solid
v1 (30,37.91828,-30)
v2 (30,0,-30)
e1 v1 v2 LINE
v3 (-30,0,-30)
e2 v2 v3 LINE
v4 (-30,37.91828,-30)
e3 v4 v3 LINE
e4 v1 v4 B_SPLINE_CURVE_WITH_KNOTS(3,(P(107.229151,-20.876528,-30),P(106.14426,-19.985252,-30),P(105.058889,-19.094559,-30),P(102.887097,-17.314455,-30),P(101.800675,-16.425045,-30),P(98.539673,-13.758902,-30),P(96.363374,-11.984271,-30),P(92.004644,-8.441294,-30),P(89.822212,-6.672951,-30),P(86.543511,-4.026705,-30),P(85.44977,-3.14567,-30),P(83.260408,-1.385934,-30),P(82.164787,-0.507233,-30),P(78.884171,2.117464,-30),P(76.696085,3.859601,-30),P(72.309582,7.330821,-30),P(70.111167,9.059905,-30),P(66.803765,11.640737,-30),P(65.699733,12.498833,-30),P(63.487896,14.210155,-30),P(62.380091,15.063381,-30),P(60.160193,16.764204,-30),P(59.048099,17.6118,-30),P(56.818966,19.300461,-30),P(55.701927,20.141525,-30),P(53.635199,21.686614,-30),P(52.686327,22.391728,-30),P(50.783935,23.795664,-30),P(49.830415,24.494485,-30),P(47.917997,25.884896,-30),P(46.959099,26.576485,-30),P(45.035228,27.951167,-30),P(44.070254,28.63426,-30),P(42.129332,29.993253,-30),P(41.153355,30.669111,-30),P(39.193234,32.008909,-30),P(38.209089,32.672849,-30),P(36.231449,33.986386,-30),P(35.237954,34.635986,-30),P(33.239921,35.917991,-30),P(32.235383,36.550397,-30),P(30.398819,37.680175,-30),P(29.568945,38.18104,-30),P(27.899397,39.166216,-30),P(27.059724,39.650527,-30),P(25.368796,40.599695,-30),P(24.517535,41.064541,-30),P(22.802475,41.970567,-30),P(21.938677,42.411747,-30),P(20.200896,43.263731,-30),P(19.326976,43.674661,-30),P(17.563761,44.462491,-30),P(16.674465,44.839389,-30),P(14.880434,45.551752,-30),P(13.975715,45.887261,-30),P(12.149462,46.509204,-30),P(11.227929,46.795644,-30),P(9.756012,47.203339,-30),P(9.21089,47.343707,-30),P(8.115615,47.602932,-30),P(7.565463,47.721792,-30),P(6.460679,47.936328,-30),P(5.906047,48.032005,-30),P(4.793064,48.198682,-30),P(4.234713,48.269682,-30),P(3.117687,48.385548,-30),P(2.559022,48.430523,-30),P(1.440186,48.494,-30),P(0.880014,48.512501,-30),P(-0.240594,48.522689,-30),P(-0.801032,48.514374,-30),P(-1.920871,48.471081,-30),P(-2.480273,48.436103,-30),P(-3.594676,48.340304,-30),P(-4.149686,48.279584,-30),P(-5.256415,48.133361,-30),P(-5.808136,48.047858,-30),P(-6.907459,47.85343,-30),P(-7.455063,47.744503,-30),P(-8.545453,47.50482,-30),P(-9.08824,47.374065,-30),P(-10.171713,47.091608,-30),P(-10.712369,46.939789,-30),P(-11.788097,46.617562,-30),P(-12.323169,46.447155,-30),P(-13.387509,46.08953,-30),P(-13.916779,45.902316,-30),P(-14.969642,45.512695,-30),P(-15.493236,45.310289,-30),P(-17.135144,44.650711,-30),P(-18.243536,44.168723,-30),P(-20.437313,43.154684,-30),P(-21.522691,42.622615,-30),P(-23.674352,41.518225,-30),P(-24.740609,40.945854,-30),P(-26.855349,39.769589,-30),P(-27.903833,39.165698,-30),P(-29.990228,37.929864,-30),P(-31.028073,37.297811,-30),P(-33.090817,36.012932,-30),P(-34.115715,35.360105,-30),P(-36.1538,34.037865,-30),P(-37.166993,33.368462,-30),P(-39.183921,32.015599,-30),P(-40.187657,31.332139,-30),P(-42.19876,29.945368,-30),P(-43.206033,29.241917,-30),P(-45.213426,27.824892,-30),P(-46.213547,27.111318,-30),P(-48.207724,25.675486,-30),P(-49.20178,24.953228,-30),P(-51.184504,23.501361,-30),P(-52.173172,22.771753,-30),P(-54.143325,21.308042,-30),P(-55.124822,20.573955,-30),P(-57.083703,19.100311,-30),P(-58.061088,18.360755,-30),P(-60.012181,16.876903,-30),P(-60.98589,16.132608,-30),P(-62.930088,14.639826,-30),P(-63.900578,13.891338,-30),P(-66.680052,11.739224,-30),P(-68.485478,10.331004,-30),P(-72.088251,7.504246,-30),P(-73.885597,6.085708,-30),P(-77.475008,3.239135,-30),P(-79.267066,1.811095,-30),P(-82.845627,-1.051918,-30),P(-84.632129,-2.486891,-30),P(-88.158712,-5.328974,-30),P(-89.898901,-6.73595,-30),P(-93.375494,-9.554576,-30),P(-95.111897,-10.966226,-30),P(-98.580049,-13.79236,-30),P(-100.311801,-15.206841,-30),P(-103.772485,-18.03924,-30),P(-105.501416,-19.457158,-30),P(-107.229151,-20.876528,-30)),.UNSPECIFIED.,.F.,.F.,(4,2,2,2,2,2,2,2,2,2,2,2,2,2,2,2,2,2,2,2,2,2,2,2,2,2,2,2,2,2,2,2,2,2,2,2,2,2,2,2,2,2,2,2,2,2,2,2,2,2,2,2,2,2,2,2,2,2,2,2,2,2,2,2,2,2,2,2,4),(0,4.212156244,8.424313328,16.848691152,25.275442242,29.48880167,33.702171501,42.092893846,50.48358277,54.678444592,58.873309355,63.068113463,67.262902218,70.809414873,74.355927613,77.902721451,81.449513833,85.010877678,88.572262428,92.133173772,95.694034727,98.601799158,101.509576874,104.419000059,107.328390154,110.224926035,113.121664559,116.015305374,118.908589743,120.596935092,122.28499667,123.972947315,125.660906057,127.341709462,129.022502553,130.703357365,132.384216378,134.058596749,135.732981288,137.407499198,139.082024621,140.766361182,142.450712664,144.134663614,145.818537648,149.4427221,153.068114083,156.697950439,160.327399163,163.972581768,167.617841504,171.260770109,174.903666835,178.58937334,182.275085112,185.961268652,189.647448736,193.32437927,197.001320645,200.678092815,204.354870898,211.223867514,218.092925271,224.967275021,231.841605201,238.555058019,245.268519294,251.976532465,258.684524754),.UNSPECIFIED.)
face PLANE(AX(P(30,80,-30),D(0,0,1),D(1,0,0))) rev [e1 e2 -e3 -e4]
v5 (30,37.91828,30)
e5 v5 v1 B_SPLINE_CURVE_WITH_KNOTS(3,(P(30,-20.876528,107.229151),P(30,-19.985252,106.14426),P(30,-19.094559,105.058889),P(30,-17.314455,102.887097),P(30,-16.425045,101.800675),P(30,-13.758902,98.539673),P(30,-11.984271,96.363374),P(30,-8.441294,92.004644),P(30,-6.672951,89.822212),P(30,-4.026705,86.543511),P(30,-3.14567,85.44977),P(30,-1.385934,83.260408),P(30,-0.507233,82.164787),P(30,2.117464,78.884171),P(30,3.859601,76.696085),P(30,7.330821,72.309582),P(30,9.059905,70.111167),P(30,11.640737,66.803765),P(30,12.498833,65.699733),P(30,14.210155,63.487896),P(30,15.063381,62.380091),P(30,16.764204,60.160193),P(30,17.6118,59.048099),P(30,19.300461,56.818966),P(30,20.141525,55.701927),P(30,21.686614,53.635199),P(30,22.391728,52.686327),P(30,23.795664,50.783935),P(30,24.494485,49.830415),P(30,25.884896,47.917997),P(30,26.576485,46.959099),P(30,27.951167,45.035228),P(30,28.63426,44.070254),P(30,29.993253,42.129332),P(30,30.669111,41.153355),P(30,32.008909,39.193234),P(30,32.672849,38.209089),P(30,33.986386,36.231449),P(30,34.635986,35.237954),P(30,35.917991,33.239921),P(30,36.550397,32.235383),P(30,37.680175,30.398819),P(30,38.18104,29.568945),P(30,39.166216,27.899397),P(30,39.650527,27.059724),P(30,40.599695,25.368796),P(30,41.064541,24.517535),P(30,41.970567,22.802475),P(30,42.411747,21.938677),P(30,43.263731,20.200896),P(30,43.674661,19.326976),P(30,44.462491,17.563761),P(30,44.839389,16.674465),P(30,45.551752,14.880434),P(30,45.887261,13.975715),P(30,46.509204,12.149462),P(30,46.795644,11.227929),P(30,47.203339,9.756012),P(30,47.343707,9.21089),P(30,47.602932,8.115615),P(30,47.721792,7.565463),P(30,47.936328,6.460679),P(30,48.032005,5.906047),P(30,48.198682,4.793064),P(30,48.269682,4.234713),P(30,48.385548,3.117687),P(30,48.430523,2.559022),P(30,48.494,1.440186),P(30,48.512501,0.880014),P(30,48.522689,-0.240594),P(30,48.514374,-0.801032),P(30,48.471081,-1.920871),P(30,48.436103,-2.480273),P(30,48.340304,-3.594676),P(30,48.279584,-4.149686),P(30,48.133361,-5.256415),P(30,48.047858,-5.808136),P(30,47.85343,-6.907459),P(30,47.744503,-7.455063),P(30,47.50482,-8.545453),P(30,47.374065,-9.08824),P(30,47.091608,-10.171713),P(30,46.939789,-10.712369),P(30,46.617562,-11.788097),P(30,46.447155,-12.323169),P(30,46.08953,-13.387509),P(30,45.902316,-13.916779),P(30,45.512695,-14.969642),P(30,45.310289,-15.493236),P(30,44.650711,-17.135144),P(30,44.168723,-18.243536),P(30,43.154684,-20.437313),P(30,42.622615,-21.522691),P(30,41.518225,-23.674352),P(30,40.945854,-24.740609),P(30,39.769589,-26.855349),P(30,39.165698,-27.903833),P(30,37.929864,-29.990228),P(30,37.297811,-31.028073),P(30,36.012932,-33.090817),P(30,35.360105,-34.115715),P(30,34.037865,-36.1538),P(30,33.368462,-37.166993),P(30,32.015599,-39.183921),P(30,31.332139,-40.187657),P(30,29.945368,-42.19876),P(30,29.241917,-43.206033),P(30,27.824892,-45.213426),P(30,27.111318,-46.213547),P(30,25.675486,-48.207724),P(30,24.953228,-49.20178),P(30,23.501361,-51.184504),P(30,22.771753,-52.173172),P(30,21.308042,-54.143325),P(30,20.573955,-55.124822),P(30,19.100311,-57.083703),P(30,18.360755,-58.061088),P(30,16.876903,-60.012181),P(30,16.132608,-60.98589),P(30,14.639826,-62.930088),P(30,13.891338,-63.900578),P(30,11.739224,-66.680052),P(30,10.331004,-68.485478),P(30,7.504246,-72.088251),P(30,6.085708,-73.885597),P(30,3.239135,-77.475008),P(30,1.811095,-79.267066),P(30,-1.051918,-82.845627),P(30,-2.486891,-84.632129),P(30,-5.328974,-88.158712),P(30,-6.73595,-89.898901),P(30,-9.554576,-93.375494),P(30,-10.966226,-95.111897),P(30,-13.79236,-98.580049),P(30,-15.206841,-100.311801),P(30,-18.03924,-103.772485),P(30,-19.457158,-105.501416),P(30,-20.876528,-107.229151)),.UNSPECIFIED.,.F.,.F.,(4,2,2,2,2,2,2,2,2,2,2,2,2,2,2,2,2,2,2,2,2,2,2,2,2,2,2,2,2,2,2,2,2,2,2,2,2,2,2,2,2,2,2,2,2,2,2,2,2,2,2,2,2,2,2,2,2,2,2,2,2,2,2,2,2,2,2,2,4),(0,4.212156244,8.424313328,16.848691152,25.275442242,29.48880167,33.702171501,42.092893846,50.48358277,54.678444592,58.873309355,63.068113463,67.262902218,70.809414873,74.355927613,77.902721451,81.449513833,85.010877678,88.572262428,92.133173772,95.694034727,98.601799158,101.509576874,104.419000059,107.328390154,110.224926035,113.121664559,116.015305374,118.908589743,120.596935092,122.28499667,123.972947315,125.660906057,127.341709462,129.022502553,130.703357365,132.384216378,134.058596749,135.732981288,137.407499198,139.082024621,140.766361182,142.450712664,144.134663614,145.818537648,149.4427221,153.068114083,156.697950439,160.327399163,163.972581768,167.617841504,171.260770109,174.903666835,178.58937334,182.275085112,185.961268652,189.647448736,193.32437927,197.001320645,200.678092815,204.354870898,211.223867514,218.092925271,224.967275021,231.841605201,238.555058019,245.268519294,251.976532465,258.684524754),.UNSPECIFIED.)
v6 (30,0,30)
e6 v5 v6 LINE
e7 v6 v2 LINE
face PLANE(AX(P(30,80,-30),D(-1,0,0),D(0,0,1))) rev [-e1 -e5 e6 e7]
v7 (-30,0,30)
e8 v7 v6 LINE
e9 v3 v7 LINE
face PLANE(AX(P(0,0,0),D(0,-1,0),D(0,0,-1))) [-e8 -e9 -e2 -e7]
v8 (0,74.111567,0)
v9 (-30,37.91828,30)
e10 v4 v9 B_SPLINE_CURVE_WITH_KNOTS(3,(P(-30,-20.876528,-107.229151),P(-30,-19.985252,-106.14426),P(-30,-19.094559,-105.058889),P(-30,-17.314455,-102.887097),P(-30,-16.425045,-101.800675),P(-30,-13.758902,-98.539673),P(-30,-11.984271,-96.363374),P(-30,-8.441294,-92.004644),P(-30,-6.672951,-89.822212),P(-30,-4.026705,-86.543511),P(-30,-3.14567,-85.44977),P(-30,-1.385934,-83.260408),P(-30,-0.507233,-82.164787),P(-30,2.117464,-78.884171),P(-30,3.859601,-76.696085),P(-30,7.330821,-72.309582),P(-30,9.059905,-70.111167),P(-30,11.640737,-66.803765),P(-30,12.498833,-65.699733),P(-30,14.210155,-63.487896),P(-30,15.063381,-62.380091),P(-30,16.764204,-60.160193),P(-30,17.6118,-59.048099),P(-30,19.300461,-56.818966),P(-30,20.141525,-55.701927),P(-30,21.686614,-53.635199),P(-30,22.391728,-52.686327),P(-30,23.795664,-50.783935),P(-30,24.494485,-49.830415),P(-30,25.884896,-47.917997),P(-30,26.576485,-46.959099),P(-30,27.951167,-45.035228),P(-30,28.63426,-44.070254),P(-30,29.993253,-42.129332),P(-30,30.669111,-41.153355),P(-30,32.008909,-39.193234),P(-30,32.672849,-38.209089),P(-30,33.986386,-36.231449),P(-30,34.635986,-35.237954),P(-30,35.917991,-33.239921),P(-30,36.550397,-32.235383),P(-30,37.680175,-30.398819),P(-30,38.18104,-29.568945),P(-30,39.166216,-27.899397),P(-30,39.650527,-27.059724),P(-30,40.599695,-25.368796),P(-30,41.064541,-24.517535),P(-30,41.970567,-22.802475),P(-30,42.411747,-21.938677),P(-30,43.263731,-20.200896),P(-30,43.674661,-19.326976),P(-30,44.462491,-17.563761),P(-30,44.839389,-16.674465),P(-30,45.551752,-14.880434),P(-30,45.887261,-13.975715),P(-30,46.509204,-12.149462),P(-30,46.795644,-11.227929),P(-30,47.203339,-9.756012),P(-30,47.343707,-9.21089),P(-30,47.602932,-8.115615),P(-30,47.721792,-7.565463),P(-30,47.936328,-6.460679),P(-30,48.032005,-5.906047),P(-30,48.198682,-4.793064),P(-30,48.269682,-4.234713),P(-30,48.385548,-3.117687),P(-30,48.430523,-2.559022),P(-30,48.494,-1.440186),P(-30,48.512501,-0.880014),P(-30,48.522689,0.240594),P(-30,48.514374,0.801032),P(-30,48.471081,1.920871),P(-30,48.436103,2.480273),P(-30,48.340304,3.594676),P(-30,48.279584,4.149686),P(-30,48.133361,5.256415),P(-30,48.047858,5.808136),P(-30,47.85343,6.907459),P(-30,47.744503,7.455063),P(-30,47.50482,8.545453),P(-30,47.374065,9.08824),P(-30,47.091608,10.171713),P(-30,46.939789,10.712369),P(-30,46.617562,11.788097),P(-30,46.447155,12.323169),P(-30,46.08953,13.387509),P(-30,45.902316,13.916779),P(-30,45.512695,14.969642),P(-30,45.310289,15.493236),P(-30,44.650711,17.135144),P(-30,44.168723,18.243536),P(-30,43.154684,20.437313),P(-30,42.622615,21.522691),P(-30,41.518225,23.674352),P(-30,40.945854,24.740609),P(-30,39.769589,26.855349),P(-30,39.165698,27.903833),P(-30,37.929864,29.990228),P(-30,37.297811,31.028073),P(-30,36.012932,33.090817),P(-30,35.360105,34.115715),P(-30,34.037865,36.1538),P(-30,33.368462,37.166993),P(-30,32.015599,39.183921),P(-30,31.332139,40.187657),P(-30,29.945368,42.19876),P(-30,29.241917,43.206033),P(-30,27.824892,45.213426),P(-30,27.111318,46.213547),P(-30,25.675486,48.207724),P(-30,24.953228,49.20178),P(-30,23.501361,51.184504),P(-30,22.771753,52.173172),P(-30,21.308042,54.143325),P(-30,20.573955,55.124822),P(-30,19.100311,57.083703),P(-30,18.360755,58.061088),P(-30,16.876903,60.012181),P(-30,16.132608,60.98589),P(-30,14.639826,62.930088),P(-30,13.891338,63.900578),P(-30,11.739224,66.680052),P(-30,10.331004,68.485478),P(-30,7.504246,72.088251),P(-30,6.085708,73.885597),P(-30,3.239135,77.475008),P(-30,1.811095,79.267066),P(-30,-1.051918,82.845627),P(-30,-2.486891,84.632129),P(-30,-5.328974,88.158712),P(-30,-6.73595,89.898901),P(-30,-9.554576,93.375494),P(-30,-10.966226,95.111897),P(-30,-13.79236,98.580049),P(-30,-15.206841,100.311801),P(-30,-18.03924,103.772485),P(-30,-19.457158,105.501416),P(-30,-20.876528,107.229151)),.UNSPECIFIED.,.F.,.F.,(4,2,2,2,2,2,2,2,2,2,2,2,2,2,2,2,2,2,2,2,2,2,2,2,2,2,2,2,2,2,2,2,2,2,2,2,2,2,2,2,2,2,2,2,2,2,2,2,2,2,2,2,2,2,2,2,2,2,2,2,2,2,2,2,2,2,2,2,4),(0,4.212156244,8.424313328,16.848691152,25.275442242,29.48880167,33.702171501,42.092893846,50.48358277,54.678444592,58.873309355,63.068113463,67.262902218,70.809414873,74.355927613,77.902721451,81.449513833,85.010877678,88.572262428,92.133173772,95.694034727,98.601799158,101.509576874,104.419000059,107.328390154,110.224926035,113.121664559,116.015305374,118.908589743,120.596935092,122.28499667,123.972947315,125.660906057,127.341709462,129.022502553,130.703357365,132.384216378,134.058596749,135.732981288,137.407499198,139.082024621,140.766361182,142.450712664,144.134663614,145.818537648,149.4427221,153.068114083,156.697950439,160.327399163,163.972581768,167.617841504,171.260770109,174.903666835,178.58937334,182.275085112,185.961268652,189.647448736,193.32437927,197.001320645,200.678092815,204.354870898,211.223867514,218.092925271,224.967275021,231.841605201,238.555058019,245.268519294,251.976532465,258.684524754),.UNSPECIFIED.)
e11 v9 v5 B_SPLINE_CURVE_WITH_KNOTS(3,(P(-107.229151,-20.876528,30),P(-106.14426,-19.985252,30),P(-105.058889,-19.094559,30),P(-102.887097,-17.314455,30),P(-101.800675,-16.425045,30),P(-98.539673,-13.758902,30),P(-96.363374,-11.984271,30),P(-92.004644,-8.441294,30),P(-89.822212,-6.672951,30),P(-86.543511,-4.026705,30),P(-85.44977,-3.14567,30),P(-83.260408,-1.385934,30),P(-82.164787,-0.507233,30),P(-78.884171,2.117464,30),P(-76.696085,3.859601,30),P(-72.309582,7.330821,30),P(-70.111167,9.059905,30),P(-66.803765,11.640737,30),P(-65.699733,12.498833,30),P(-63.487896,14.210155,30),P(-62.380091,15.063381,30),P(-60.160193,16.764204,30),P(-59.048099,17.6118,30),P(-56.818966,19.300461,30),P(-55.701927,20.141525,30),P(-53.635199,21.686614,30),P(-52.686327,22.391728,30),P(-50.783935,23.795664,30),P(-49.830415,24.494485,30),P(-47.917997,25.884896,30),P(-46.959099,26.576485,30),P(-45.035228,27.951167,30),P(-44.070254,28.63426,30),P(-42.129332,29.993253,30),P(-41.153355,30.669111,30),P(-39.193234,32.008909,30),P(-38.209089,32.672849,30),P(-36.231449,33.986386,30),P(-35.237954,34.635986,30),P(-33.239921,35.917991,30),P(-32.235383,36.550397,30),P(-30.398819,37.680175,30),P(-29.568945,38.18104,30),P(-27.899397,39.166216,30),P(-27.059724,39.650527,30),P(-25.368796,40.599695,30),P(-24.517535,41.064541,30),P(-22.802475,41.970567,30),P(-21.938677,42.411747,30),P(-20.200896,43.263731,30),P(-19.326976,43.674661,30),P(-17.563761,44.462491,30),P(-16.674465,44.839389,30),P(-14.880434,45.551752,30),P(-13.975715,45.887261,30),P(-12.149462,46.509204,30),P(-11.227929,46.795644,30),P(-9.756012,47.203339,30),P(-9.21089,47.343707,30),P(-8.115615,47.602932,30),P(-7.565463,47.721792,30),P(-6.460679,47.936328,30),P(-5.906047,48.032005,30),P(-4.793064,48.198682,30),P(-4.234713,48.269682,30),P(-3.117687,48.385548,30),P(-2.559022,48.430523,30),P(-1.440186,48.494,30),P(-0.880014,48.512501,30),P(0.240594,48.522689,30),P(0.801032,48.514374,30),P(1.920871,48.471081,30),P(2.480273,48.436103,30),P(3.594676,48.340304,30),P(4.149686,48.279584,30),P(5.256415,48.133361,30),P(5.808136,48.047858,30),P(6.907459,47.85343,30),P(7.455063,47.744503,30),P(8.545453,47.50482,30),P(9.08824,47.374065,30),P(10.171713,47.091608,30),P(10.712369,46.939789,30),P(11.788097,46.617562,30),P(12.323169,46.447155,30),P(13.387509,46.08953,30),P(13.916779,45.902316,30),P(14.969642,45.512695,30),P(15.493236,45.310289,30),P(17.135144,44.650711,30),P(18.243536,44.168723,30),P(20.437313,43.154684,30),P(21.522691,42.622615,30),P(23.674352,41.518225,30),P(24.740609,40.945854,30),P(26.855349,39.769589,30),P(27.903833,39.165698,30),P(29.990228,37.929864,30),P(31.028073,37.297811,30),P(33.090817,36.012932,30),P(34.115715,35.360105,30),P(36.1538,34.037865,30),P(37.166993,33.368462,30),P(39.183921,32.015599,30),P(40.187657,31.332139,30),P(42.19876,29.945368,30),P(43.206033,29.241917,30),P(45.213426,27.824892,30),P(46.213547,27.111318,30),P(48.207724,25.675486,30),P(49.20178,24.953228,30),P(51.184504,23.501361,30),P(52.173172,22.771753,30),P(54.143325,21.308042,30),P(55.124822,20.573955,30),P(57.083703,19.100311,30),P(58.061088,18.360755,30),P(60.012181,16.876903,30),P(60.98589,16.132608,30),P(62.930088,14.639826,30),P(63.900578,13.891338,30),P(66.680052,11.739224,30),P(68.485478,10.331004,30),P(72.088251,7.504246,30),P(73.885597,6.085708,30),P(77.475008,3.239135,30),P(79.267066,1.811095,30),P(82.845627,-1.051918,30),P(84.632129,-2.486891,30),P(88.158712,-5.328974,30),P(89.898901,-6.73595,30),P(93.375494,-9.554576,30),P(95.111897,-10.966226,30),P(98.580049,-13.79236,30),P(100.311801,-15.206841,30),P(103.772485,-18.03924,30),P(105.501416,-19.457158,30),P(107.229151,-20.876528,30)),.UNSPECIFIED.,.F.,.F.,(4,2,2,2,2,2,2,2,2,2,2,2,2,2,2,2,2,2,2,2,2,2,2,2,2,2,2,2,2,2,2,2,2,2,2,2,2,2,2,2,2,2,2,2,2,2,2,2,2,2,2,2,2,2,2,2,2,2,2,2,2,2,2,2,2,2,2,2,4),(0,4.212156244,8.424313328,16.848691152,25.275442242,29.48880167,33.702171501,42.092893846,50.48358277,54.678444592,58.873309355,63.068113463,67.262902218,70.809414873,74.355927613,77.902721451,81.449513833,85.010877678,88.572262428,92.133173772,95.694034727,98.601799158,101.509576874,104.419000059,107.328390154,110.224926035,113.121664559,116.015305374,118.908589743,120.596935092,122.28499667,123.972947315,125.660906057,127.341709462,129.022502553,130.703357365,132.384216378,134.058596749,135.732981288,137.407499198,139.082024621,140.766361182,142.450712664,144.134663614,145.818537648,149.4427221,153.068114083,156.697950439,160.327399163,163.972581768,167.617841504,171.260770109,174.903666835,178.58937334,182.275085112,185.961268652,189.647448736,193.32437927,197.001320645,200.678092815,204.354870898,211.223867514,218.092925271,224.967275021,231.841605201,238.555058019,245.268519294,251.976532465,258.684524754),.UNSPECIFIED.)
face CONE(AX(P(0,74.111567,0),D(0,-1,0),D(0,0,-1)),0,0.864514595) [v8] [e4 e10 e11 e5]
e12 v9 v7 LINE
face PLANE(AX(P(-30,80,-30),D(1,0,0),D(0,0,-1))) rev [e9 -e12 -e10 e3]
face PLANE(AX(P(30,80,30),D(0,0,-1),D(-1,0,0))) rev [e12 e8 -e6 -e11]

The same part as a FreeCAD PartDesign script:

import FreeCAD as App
import Part
import Sketcher

V = App.Vector


def add_polygon(sketch, points):
    """Adds a closed chain of lines whose ends are joined by coincident constraints."""
    first, n = sketch.GeometryCount, len(points)
    for a, b in zip(points, points[1:] + points[:1]):
        sketch.addGeometry(Part.LineSegment(App.Vector(*a, 0), App.Vector(*b, 0)), False)
    for i in range(n):
        sketch.addConstraint(Sketcher.Constraint("Coincident", first + i, 2, first + (i + 1) % n, 1))

doc = App.newDocument("Part")
params = doc.addObject("Spreadsheet::Sheet", "Params")
for row, (alias, value) in enumerate([
    ("sketch1_width", "60 mm"),
    ("pad1_length", "80 mm"),
    ("groove_angle", "360 deg"),
], start=1):
    params.set(f"A{row}", alias)
    params.set(f"B{row}", "=" + value)
    params.setAlias(f"B{row}", alias)

body = doc.addObject("PartDesign::Body", "Body")

# Sketch on XZ plane
sketch1 = doc.addObject("Sketcher::SketchObject", "Sketch")
body.addObject(sketch1)
sketch1.AttachmentSupport = (doc.XZ_Plane, [""])
sketch1.MapMode = "FlatFace"
add_polygon(sketch1, [(-30, -30), (-30, 30), (30, 30), (30, -30)])  # lines 0-3
sketch1.addConstraint([
    Sketcher.Constraint("Vertical", 0),
    Sketcher.Constraint("Horizontal", 1),
    Sketcher.Constraint("Vertical", 2),
    Sketcher.Constraint("Horizontal", 3),
    Sketcher.Constraint("Symmetric", 0, 2, 2, 2, -1, 1),
    Sketcher.Constraint("Equal", 3, 0),
    Sketcher.Constraint("DistanceX", 1, 1, 1, 2, 60.0),
])
sketch1.setExpression("Constraints[10]", "Params.sketch1_width")
pad1 = doc.addObject("PartDesign::Pad", "Pad")
body.addObject(pad1)
pad1.Profile = sketch1
pad1.setExpression("Length", "Params.pad1_length")
pad1.Reversed = True

# Sketch on XY plane
sketch2 = doc.addObject("Sketcher::SketchObject", "Sketch001")
body.addObject(sketch2)
sketch2.AttachmentSupport = (doc.XY_Plane, [""])
sketch2.MapMode = "FlatFace"
add_polygon(sketch2, [(0, 88.590555), (0, 74.111567), (56.998119, 25.487387), (56.998119, 88.590555)])  # lines 0-3
sketch2.addConstraint([
    Sketcher.Constraint("Vertical", 0),
    Sketcher.Constraint("Vertical", 2),
    Sketcher.Constraint("Horizontal", 3),
    Sketcher.Constraint("PointOnObject", 0, 2, -2),
    Sketcher.Constraint("Distance", 1, 74.920601),
    Sketcher.Constraint("DistanceX", 3, 2, 3, 1, 56.998119),
    Sketcher.Constraint("DistanceY", 0, 2, 0, 1, 14.478989),
    Sketcher.Constraint("DistanceY", -1, 1, 0, 2, 74.111567),
])
groove = doc.addObject("PartDesign::Groove", "Groove")
body.addObject(groove)
groove.Profile = sketch2
groove.ReferenceAxis = (sketch2, ["V_Axis"])
groove.setExpression("Angle", "Params.groove_angle")

doc.recompute()
